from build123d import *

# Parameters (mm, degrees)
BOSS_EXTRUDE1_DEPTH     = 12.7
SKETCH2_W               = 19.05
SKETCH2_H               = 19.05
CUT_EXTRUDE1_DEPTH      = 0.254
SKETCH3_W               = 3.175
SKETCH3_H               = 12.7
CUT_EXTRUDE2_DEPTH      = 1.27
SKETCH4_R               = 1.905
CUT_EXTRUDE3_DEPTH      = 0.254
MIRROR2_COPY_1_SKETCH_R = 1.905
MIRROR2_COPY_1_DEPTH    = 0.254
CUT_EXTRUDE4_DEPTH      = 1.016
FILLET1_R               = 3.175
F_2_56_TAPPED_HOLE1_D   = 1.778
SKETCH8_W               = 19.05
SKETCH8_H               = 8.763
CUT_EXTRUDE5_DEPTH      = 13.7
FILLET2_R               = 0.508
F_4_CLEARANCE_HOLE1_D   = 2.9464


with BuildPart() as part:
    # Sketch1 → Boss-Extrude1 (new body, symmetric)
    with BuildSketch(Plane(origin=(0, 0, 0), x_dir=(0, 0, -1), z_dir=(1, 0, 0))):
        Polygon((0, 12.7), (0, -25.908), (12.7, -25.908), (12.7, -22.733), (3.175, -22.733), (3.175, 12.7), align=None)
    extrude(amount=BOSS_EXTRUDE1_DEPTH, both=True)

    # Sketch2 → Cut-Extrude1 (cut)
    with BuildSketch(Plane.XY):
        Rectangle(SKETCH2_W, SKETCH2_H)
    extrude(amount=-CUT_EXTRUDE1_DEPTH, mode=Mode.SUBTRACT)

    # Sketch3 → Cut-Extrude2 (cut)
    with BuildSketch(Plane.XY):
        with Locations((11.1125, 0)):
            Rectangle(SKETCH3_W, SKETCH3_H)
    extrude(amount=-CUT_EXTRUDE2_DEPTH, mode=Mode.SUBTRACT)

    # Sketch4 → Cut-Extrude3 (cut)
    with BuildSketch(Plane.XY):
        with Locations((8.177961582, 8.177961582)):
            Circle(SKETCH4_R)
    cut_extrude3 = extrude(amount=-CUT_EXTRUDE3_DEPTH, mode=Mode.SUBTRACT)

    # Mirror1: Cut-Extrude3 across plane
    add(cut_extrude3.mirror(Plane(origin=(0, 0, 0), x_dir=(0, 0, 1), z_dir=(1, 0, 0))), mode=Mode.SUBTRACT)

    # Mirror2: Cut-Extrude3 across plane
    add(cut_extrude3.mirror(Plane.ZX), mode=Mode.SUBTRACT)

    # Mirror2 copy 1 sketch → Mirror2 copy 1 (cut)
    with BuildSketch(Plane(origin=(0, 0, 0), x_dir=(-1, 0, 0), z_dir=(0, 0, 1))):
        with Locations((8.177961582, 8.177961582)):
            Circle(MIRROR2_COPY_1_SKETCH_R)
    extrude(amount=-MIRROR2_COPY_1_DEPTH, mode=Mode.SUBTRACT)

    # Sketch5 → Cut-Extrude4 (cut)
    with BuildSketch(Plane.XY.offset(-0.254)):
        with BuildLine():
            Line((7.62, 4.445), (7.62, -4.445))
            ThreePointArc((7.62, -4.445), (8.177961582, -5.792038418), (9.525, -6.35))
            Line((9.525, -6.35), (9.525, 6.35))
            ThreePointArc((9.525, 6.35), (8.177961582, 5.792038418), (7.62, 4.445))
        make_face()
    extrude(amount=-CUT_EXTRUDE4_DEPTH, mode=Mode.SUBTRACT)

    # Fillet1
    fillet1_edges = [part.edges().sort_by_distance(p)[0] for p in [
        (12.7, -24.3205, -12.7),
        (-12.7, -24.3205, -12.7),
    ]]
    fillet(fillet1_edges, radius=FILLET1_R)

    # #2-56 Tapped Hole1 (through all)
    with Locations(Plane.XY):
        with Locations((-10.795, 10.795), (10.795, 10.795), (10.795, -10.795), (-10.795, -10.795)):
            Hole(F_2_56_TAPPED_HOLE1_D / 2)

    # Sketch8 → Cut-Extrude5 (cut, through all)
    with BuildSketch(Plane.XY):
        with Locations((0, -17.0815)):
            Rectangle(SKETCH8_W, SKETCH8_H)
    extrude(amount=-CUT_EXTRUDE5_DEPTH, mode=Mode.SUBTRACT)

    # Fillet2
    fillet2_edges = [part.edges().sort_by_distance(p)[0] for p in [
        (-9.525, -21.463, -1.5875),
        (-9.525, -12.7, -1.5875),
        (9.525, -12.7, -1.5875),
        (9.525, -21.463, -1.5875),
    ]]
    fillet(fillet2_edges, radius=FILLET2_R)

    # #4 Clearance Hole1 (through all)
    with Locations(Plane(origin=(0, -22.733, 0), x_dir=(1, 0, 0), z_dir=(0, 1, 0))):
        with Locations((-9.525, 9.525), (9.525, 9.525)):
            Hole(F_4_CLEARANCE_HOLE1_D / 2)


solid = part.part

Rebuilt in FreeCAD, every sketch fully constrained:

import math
import FreeCAD as App
import Part
import Sketcher
from FreeCAD import Vector
Q = App.Units.Quantity


def edges_at(feature, points):
    """Names of the edges that pass closest to the given points."""
    edges = feature.Shape.Edges
    near = lambda p: min(range(len(edges)), key=lambda i: edges[i].distToShape(Part.Vertex(*p))[0])
    return sorted({f"Edge{near(p) + 1}" for p in points})

doc = App.newDocument("Part")
params = doc.addObject("Spreadsheet::Sheet", "Params")
for row, (alias, value) in enumerate([
    ("sketch1_height", "0.5 in"),
    ("sketch1_width", "1.52 in"),
    ("sketch1_width2", "0.125 in"),
    ("pad1_length", "1 in"),
    ("sketch2_width", "0.75 in"),
    ("pocket1_length", "0.01 in"),
    ("sketch3_height", "0.5 in"),
    ("sketch3_width", "0.125 in"),
    ("pocket2_length", "0.05 in"),
    ("sketch4_diameter", "0.15 in"),
    ("pocket3_length", "0.01 in"),
    ("sketch5_diameter", "0.15 in"),
    ("pocket4_length", "0.01 in"),
    ("sketch6_height", "0.5 in"),
    ("sketch6_radius", "0.075 in"),
    ("pocket5_length", "0.04 in"),
    ("fillet_radius", "0.125 in"),
    ("sketch7_diameter", "0.07 in"),
    ("hole_diameter", "0.07 in"),
    ("sketch8_width", "0.75 in"),
    ("sketch8_height", "0.345 in"),
    ("fillet2_radius", "0.02 in"),
    ("sketch9_diameter", "0.116 in"),
    ("hole2_diameter", "0.116 in"),
], start=1):
    params.set(f"A{row}", alias)
    params.set(f"B{row}", "=" + value)
    params.setAlias(f"B{row}", alias)

body = doc.addObject("PartDesign::Body", "Body")

sketch1 = body.newObject("Sketcher::SketchObject", "Sketch")
sketch1.AttachmentSupport = (doc.getObject("YZ_Plane"), [""])
sketch1.MapMode = "FlatFace"
sketch1.addGeometry(Part.LineSegment(Vector(12.7, 0, 0), Vector(-25.9, 0, 0)), False)
sketch1.addGeometry(Part.LineSegment(Vector(-25.9, 0, 0), Vector(-25.9, -12.7, 0)), False)
sketch1.addGeometry(Part.LineSegment(Vector(-25.9, -12.7, 0), Vector(-22.7, -12.7, 0)), False)
sketch1.addGeometry(Part.LineSegment(Vector(-22.7, -12.7, 0), Vector(-22.7, -3.2, 0)), False)
sketch1.addGeometry(Part.LineSegment(Vector(-22.7, -3.2, 0), Vector(12.7, -3.2, 0)), False)
sketch1.addGeometry(Part.LineSegment(Vector(12.7, -3.2, 0), Vector(12.7, 0, 0)), False)
sketch1.addConstraint(Sketcher.Constraint("Coincident", 0, 2, 1, 1))
sketch1.addConstraint(Sketcher.Constraint("Coincident", 1, 2, 2, 1))
sketch1.addConstraint(Sketcher.Constraint("Coincident", 2, 2, 3, 1))
sketch1.addConstraint(Sketcher.Constraint("Coincident", 3, 2, 4, 1))
sketch1.addConstraint(Sketcher.Constraint("Coincident", 4, 2, 5, 1))
sketch1.addConstraint(Sketcher.Constraint("Coincident", 5, 2, 0, 1))
sketch1.addConstraint(Sketcher.Constraint("Horizontal", 0))
sketch1.addConstraint(Sketcher.Constraint("Vertical", 1))
sketch1.addConstraint(Sketcher.Constraint("Horizontal", 2))
sketch1.addConstraint(Sketcher.Constraint("Vertical", 3))
sketch1.addConstraint(Sketcher.Constraint("Horizontal", 4))
sketch1.addConstraint(Sketcher.Constraint("Vertical", 5))
sketch1.addConstraint(Sketcher.Constraint("PointOnObject", 0, 2, -1))
sketch1.addConstraint(Sketcher.Constraint("Equal", 2, 5))
sketch1.addConstraint(Sketcher.Constraint("DistanceY", 1, 2, 1, 1, Q("0.5 in")))
sketch1.addConstraint(Sketcher.Constraint("DistanceX", 0, 2, 0, 1, Q("1.52 in")))
sketch1.addConstraint(Sketcher.Constraint("DistanceX", -1, 1, 4, 2, Q("0.5 in")))
sketch1.addConstraint(Sketcher.Constraint("DistanceX", 2, 1, 2, 2, Q("0.125 in")))
sketch1.setExpression("Constraints[14]", "Params.sketch1_height")
sketch1.setExpression("Constraints[15]", "Params.sketch1_width")
sketch1.setExpression("Constraints[17]", "Params.sketch1_width2")
pad1 = body.newObject("PartDesign::Pad", "Pad")
pad1.Profile = sketch1
pad1.setExpression("Length", "Params.pad1_length")
pad1.Midplane = True

sketch2 = body.newObject("Sketcher::SketchObject", "Sketch001")
sketch2.AttachmentSupport = (doc.getObject("XY_Plane"), [""])
sketch2.MapMode = "FlatFace"
sketch2.addGeometry(Part.LineSegment(Vector(-10, 10, 0), Vector(-10, -10, 0)), False)
sketch2.addGeometry(Part.LineSegment(Vector(-10, -10, 0), Vector(10, -10, 0)), False)
sketch2.addGeometry(Part.LineSegment(Vector(10, -10, 0), Vector(10, 10, 0)), False)
sketch2.addGeometry(Part.LineSegment(Vector(10, 10, 0), Vector(-10, 10, 0)), False)
sketch2.addConstraint(Sketcher.Constraint("Coincident", 0, 2, 1, 1))
sketch2.addConstraint(Sketcher.Constraint("Coincident", 1, 2, 2, 1))
sketch2.addConstraint(Sketcher.Constraint("Coincident", 2, 2, 3, 1))
sketch2.addConstraint(Sketcher.Constraint("Coincident", 3, 2, 0, 1))
sketch2.addConstraint(Sketcher.Constraint("Vertical", 0))
sketch2.addConstraint(Sketcher.Constraint("Horizontal", 1))
sketch2.addConstraint(Sketcher.Constraint("Vertical", 2))
sketch2.addConstraint(Sketcher.Constraint("Horizontal", 3))
sketch2.addConstraint(Sketcher.Constraint("Symmetric", 0, 2, 2, 2, -1, 1))
sketch2.addConstraint(Sketcher.Constraint("Equal", 3, 0))
sketch2.addConstraint(Sketcher.Constraint("DistanceX", 1, 1, 1, 2, Q("0.75 in")))
sketch2.setExpression("Constraints[10]", "Params.sketch2_width")
pocket1 = body.newObject("PartDesign::Pocket", "Pocket")
pocket1.Profile = sketch2
pocket1.setExpression("Length", "Params.pocket1_length")

sketch3 = body.newObject("Sketcher::SketchObject", "Sketch002")
sketch3.AttachmentSupport = (doc.getObject("XY_Plane"), [""])
sketch3.MapMode = "FlatFace"
sketch3.addGeometry(Part.LineSegment(Vector(9.5, 6.3, 0), Vector(9.5, -6.3, 0)), False)
sketch3.addGeometry(Part.LineSegment(Vector(9.5, -6.3, 0), Vector(12.7, -6.3, 0)), False)
sketch3.addGeometry(Part.LineSegment(Vector(12.7, -6.3, 0), Vector(12.7, 6.3, 0)), False)
sketch3.addGeometry(Part.LineSegment(Vector(12.7, 6.3, 0), Vector(9.5, 6.3, 0)), False)
sketch3.addConstraint(Sketcher.Constraint("Coincident", 0, 2, 1, 1))
sketch3.addConstraint(Sketcher.Constraint("Coincident", 1, 2, 2, 1))
sketch3.addConstraint(Sketcher.Constraint("Coincident", 2, 2, 3, 1))
sketch3.addConstraint(Sketcher.Constraint("Coincident", 3, 2, 0, 1))
sketch3.addConstraint(Sketcher.Constraint("Vertical", 0))
sketch3.addConstraint(Sketcher.Constraint("Horizontal", 1))
sketch3.addConstraint(Sketcher.Constraint("Vertical", 2))
sketch3.addConstraint(Sketcher.Constraint("Horizontal", 3))
sketch3.addConstraint(Sketcher.Constraint("DistanceY", 0, 2, 0, 1, Q("0.5 in")))
sketch3.addConstraint(Sketcher.Constraint("DistanceX", -1, 1, 1, 2, Q("0.5 in")))
sketch3.addConstraint(Sketcher.Constraint("DistanceX", 1, 1, 1, 2, Q("0.125 in")))
sketch3.addConstraint(Sketcher.Constraint("DistanceY", 0, 2, -1, 1, Q("0.25 in")))
sketch3.setExpression("Constraints[8]", "Params.sketch3_height")
sketch3.setExpression("Constraints[10]", "Params.sketch3_width")
pocket2 = body.newObject("PartDesign::Pocket", "Pocket001")
pocket2.Profile = sketch3
pocket2.setExpression("Length", "Params.pocket2_length")

sketch4 = body.newObject("Sketcher::SketchObject", "Sketch003")
sketch4.AttachmentSupport = (doc.getObject("XY_Plane"), [""])
sketch4.MapMode = "FlatFace"
sketch4.addGeometry(Part.Circle(Vector(8.2, 8.2, 0), Vector(0, 0, 1), 1.9), False)
sketch4.addConstraint(Sketcher.Constraint("Diameter", 0, Q("0.15 in")))
sketch4.addConstraint(Sketcher.Constraint("DistanceX", -1, 1, 0, 3, 8.177962))
sketch4.addConstraint(Sketcher.Constraint("DistanceY", -1, 1, 0, 3, 8.177962))
sketch4.setExpression("Constraints[0]", "Params.sketch4_diameter")
pocket3 = body.newObject("PartDesign::Pocket", "Pocket002")
pocket3.Profile = sketch4
pocket3.setExpression("Length", "Params.pocket3_length")
doc.recompute()

mirrored = body.newObject("PartDesign::Mirrored", "Mirrored")
mirrored.Originals = [pocket3]
mirrored.MirrorPlane = (doc.getObject("YZ_Plane"), [""])
body.Tip = mirrored
doc.recompute()

mirrored2 = body.newObject("PartDesign::Mirrored", "Mirrored001")
mirrored2.Originals = [pocket3]
mirrored2.MirrorPlane = (doc.getObject("XZ_Plane"), [""])
body.Tip = mirrored2

sketch5 = body.newObject("Sketcher::SketchObject", "Sketch004")
sketch5.AttachmentSupport = (doc.getObject("XY_Plane"), [""])
sketch5.MapMode = "FlatFace"
sketch5.addGeometry(Part.Circle(Vector(-8.2, -8.2, 0), Vector(0, 0, 1), 1.9), False)
sketch5.addConstraint(Sketcher.Constraint("Diameter", 0, Q("0.15 in")))
sketch5.addConstraint(Sketcher.Constraint("DistanceX", 0, 3, -1, 1, 8.177962))
sketch5.addConstraint(Sketcher.Constraint("DistanceY", 0, 3, -1, 1, 8.177962))
sketch5.setExpression("Constraints[0]", "Params.sketch5_diameter")
pocket4 = body.newObject("PartDesign::Pocket", "Pocket003")
pocket4.Profile = sketch5
pocket4.setExpression("Length", "Params.pocket4_length")

sketch6 = body.newObject("Sketcher::SketchObject", "Sketch005")
sketch6.AttachmentSupport = (doc.getObject("XY_Plane"), [""])
sketch6.MapMode = "FlatFace"
sketch6.AttachmentOffset = App.Placement(Vector(0, 0, -0.01 * 25.4), App.Rotation())
sketch6.addGeometry(Part.LineSegment(Vector(7.6, 4.4, 0), Vector(7.6, -4.4, 0)), False)
sketch6.addGeometry(Part.ArcOfCircle(Part.Circle(Vector(9.5, -4.4, 0), Vector(0, 0, 1), 1.9), math.radians(-180), math.radians(-90)), False)
sketch6.addGeometry(Part.LineSegment(Vector(9.5, -6.3, 0), Vector(9.5, 6.3, 0)), False)
sketch6.addGeometry(Part.ArcOfCircle(Part.Circle(Vector(9.5, 4.4, 0), Vector(0, 0, 1), 1.9), math.radians(90), math.radians(180)), False)
sketch6.addConstraint(Sketcher.Constraint("Tangent", 0, 2, 1, 1))
sketch6.addConstraint(Sketcher.Constraint("Coincident", 1, 2, 2, 1))
sketch6.addConstraint(Sketcher.Constraint("Coincident", 2, 2, 3, 1))
sketch6.addConstraint(Sketcher.Constraint("Tangent", 3, 2, 0, 1))
sketch6.addConstraint(Sketcher.Constraint("Vertical", 0))
sketch6.addConstraint(Sketcher.Constraint("Vertical", 2))
sketch6.addConstraint(Sketcher.Constraint("Equal", 1, 3))
sketch6.addConstraint(Sketcher.Constraint("Vertical", 3, 3, 1, 2))
sketch6.addConstraint(Sketcher.Constraint("DistanceY", 2, 1, 2, 2, Q("0.5 in")))
sketch6.addConstraint(Sketcher.Constraint("Radius", 1, Q("0.075 in")))
sketch6.addConstraint(Sketcher.Constraint("DistanceX", -1, 1, 0, 2, Q("0.3 in")))
sketch6.addConstraint(Sketcher.Constraint("DistanceY", 1, 2, -1, 1, Q("0.25 in")))
sketch6.setExpression("Constraints[8]", "Params.sketch6_height")
sketch6.setExpression("Constraints[9]", "Params.sketch6_radius")
pocket5 = body.newObject("PartDesign::Pocket", "Pocket004")
pocket5.Profile = sketch6
pocket5.setExpression("Length", "Params.pocket5_length")
doc.recompute()

fillet = body.newObject("PartDesign::Fillet", "Fillet")
fillet.Base = (pocket5, edges_at(pocket5, [(12.7, -24.32, -12.7), (-12.7, -24.32, -12.7)]))
fillet.setExpression("Radius", "Params.fillet_radius")

sketch7 = body.newObject("Sketcher::SketchObject", "Sketch006")
sketch7.AttachmentSupport = (doc.getObject("XY_Plane"), [""])
sketch7.MapMode = "FlatFace"
sketch7.addGeometry(Part.Circle(Vector(-10.8, 10.8, 0), Vector(0, 0, 1), 0.9), False)
sketch7.addGeometry(Part.Circle(Vector(10.8, 10.8, 0), Vector(0, 0, 1), 0.9), False)
sketch7.addGeometry(Part.Circle(Vector(10.8, -10.8, 0), Vector(0, 0, 1), 0.9), False)
sketch7.addGeometry(Part.Circle(Vector(-10.8, -10.8, 0), Vector(0, 0, 1), 0.9), False)
sketch7.addConstraint(Sketcher.Constraint("Equal", 0, 1))
sketch7.addConstraint(Sketcher.Constraint("Equal", 1, 2))
sketch7.addConstraint(Sketcher.Constraint("Equal", 2, 3))
sketch7.addConstraint(Sketcher.Constraint("Symmetric", 0, 3, 2, 3, -1, 1))
sketch7.addConstraint(Sketcher.Constraint("Symmetric", 1, 3, 3, 3, -1, 1))
sketch7.addConstraint(Sketcher.Constraint("Symmetric", 0, 3, 1, 3, -2))
sketch7.addConstraint(Sketcher.Constraint("Diameter", 0, Q("0.07 in")))
sketch7.addConstraint(Sketcher.Constraint("DistanceX", 0, 3, 1, 3, Q("0.85 in")))
sketch7.addConstraint(Sketcher.Constraint("DistanceY", 2, 3, 1, 3, Q("0.85 in")))
sketch7.setExpression("Constraints[6]", "Params.sketch7_diameter")
doc.recompute()
hole = body.newObject("PartDesign::Hole", "Hole")
hole.Profile = sketch7
hole.ThreadType = "None"
hole.setExpression("Diameter", "Params.hole_diameter")
hole.DepthType = "ThroughAll"

sketch8 = body.newObject("Sketcher::SketchObject", "Sketch007")
sketch8.AttachmentSupport = (doc.getObject("XY_Plane"), [""])
sketch8.MapMode = "FlatFace"
sketch8.addGeometry(Part.LineSegment(Vector(-10, -13, 0), Vector(-10, -21, 0)), False)
sketch8.addGeometry(Part.LineSegment(Vector(-10, -21, 0), Vector(10, -21, 0)), False)
sketch8.addGeometry(Part.LineSegment(Vector(10, -21, 0), Vector(10, -13, 0)), False)
sketch8.addGeometry(Part.LineSegment(Vector(10, -13, 0), Vector(-10, -13, 0)), False)
sketch8.addConstraint(Sketcher.Constraint("Coincident", 0, 2, 1, 1))
sketch8.addConstraint(Sketcher.Constraint("Coincident", 1, 2, 2, 1))
sketch8.addConstraint(Sketcher.Constraint("Coincident", 2, 2, 3, 1))
sketch8.addConstraint(Sketcher.Constraint("Coincident", 3, 2, 0, 1))
sketch8.addConstraint(Sketcher.Constraint("Vertical", 0))
sketch8.addConstraint(Sketcher.Constraint("Horizontal", 1))
sketch8.addConstraint(Sketcher.Constraint("Vertical", 2))
sketch8.addConstraint(Sketcher.Constraint("Horizontal", 3))
sketch8.addConstraint(Sketcher.Constraint("DistanceX", 1, 1, 1, 2, Q("0.75 in")))
sketch8.addConstraint(Sketcher.Constraint("DistanceY", 2, 2, -1, 1, Q("0.5 in")))
sketch8.addConstraint(Sketcher.Constraint("DistanceY", 0, 2, 0, 1, Q("0.345 in")))
sketch8.addConstraint(Sketcher.Constraint("DistanceX", 0, 2, -1, 1, Q("0.375 in")))
sketch8.setExpression("Constraints[8]", "Params.sketch8_width")
sketch8.setExpression("Constraints[10]", "Params.sketch8_height")
pocket6 = body.newObject("PartDesign::Pocket", "Pocket005")
pocket6.Profile = sketch8
pocket6.Type = "ThroughAll"
doc.recompute()

fillet2 = body.newObject("PartDesign::Fillet", "Fillet001")
fillet2.Base = (pocket6, edges_at(pocket6, [
    (-9.525, -21.463, -1.587),
    (-9.525, -12.7, -1.587),
    (9.525, -12.7, -1.587),
    (9.525, -21.463, -1.587),
]))
fillet2.setExpression("Radius", "Params.fillet2_radius")

sketch9 = body.newObject("Sketcher::SketchObject", "Sketch008")
sketch9.AttachmentSupport = (doc.getObject("XZ_Plane"), [""])
sketch9.MapMode = "FlatFace"
sketch9.AttachmentOffset = App.Placement(Vector(0, 0, 0.895 * 25.4), App.Rotation())
sketch9.addGeometry(Part.Circle(Vector(-9.5, -9.5, 0), Vector(0, 0, 1), 1.5), False)
sketch9.addGeometry(Part.Circle(Vector(9.5, -9.5, 0), Vector(0, 0, 1), 1.5), False)
sketch9.addConstraint(Sketcher.Constraint("Equal", 0, 1))
sketch9.addConstraint(Sketcher.Constraint("Symmetric", 0, 3, 1, 3, -2))
sketch9.addConstraint(Sketcher.Constraint("Diameter", 0, Q("0.116 in")))
sketch9.addConstraint(Sketcher.Constraint("DistanceX", 0, 3, 1, 3, Q("0.75 in")))
sketch9.addConstraint(Sketcher.Constraint("DistanceY", 0, 3, -1, 1, Q("0.375 in")))
sketch9.setExpression("Constraints[2]", "Params.sketch9_diameter")
doc.recompute()
hole2 = body.newObject("PartDesign::Hole", "Hole001")
hole2.Profile = sketch9
hole2.ThreadType = "None"
hole2.setExpression("Diameter", "Params.hole2_diameter")
hole2.DepthType = "ThroughAll"
hole2.Reversed = True

doc.recompute()
